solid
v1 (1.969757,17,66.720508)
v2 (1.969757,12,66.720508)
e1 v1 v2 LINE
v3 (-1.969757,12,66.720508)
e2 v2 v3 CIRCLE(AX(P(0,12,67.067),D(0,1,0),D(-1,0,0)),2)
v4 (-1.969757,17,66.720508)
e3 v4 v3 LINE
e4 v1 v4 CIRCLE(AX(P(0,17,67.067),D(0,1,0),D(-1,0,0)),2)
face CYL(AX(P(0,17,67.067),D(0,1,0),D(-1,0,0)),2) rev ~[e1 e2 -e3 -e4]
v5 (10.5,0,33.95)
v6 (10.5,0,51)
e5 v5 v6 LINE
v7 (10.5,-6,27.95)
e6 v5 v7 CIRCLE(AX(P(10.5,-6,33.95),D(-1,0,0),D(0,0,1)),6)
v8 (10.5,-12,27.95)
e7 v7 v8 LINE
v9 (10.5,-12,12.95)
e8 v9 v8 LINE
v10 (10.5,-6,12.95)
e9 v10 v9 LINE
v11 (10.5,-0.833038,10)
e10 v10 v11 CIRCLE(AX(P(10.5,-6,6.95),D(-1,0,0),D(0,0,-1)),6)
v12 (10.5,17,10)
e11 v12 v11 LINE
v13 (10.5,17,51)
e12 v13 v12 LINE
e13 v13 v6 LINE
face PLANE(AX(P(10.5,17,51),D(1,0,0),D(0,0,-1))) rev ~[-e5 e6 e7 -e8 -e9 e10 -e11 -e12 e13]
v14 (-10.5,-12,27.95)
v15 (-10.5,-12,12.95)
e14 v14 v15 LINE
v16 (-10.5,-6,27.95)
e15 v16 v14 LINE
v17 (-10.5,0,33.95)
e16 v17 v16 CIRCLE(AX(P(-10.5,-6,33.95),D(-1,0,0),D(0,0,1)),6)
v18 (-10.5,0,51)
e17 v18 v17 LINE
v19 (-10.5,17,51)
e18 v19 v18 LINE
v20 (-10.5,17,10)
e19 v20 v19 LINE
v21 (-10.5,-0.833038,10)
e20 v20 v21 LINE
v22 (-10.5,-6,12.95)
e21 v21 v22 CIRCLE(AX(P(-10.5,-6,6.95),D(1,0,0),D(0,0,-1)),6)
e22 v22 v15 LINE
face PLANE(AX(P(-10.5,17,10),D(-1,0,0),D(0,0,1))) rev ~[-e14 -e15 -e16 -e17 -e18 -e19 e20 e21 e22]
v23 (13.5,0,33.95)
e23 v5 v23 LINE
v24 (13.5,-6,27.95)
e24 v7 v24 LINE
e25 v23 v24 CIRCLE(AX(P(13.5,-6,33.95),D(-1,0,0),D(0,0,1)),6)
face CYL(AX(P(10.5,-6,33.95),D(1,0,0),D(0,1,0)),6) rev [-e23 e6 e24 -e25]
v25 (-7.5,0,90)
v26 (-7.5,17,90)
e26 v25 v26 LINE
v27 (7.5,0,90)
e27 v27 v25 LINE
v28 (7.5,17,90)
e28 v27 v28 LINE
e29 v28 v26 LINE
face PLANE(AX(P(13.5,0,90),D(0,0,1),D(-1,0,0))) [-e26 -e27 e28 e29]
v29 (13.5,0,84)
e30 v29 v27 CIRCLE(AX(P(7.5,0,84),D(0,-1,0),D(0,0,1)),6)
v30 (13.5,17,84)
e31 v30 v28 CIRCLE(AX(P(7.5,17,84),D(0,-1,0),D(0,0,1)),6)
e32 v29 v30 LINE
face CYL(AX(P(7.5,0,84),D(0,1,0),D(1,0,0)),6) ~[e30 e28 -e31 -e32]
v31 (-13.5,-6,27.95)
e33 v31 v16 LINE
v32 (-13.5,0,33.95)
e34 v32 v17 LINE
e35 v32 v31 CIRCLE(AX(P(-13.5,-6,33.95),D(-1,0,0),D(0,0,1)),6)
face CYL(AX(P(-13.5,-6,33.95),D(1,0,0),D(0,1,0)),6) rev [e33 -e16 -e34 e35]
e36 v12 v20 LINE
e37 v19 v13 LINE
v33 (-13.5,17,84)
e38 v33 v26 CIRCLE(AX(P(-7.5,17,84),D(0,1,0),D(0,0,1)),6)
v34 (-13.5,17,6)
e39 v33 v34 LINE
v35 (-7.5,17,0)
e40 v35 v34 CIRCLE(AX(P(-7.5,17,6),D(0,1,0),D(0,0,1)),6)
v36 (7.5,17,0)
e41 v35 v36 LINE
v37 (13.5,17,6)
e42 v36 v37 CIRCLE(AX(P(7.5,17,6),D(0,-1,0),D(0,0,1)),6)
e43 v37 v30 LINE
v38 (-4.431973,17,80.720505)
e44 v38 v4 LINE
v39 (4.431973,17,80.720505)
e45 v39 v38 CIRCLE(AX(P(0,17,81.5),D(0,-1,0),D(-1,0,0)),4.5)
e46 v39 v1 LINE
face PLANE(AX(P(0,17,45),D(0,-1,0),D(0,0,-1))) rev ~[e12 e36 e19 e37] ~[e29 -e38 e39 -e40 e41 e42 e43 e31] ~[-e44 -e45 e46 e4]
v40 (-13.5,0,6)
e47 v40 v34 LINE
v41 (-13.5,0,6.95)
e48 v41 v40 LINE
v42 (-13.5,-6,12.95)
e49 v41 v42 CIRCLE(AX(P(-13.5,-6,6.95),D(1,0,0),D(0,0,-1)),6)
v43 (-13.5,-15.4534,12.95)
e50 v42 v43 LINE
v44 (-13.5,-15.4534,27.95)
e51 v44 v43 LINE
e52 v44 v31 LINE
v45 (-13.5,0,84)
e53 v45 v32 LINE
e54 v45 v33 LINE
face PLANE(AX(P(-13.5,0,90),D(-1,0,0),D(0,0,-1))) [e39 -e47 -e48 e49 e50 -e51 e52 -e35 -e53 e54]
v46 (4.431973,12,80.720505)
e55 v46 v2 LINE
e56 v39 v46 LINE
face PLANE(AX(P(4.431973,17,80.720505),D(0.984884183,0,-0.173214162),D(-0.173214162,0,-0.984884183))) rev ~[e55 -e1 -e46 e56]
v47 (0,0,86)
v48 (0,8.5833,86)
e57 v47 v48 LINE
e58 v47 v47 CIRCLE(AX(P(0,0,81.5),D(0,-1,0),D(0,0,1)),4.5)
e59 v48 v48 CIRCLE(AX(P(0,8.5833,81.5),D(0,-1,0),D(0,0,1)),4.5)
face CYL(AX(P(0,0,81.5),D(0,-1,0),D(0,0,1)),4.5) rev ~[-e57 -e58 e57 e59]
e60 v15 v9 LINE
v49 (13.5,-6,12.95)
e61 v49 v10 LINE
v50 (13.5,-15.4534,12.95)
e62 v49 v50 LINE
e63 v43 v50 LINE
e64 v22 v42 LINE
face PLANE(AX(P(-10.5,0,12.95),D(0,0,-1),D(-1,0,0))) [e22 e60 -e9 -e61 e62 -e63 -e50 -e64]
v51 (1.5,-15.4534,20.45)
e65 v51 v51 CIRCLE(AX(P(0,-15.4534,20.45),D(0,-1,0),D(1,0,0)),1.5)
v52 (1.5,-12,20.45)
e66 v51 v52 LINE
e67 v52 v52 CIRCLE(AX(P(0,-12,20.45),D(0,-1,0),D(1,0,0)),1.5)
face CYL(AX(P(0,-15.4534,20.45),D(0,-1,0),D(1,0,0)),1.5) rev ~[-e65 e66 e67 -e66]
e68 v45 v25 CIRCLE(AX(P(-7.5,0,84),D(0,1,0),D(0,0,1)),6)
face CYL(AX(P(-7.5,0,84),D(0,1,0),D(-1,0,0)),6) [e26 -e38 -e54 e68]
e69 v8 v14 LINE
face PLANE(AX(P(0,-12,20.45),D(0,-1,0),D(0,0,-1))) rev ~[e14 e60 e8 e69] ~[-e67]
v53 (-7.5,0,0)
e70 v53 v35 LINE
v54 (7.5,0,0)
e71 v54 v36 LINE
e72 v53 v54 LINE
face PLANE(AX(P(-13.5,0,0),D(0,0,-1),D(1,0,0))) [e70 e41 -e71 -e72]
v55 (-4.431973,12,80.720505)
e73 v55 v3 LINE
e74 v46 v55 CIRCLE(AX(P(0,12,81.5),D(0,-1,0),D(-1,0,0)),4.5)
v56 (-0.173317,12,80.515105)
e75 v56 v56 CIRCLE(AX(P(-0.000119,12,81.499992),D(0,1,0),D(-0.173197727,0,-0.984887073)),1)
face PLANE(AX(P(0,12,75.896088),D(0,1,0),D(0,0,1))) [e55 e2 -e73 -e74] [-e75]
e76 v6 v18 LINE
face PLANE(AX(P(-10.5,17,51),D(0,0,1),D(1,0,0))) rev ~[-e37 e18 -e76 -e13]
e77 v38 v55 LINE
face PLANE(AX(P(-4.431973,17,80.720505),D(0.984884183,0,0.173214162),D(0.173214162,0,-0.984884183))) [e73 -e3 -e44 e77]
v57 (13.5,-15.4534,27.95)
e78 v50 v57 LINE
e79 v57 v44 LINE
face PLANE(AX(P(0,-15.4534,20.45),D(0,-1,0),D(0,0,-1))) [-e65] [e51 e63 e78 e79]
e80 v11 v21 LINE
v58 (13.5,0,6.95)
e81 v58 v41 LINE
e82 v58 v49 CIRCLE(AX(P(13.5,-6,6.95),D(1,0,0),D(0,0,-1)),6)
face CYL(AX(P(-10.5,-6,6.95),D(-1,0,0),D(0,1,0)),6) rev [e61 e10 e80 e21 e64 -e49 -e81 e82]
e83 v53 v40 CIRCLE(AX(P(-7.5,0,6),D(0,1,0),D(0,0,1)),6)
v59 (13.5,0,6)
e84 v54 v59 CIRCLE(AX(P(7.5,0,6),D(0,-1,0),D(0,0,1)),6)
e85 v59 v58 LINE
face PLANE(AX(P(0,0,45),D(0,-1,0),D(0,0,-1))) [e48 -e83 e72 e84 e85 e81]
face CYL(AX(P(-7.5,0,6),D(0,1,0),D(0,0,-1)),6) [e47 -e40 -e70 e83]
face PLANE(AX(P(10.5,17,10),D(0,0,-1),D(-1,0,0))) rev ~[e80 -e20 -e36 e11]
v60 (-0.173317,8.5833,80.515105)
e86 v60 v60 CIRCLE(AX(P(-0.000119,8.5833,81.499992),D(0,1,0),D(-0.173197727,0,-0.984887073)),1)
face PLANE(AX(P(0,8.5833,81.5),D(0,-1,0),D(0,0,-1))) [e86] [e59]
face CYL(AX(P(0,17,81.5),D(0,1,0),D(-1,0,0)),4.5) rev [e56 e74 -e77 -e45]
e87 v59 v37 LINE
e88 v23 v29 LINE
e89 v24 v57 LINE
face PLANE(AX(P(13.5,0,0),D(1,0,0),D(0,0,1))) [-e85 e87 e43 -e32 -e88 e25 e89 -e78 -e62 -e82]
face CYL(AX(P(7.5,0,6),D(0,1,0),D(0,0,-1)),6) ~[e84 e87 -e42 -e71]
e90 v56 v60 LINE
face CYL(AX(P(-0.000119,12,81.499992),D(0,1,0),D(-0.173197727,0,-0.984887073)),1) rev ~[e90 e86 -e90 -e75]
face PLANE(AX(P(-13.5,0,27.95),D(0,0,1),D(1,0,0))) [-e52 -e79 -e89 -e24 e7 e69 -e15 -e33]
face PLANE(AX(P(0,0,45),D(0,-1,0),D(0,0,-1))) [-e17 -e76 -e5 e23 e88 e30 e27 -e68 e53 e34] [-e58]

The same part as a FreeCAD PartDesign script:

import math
import FreeCAD as App
import Part
import Sketcher
from FreeCAD import Vector
Q = App.Units.Quantity


def edges_at(feature, points):
    """Names of the edges that pass closest to the given points."""
    edges = feature.Shape.Edges
    near = lambda p: min(range(len(edges)), key=lambda i: edges[i].distToShape(Part.Vertex(*p))[0])
    return sorted({f"Edge{near(p) + 1}" for p in points})


def add_polygon(sketch, points):
    """Adds a closed chain of lines whose ends are joined by coincident constraints."""
    first, n = sketch.GeometryCount, len(points)
    for a, b in zip(points, points[1:] + points[:1]):
        sketch.addGeometry(Part.LineSegment(App.Vector(*a, 0), App.Vector(*b, 0)), False)
    for i in range(n):
        sketch.addConstraint(Sketcher.Constraint("Coincident", first + i, 2, first + (i + 1) % n, 1))

doc = App.newDocument("Part")
body = doc.addObject("PartDesign::Body", "Body")

sketch1 = doc.addObject("Sketcher::SketchObject", "Sketch")
body.addObject(sketch1)
sketch1.AttachmentSupport = (doc.XZ_Plane, [""])
sketch1.MapMode = "FlatFace"
add_polygon(sketch1, [(-13.5, 90), (-13.5, 0), (13.5, 0), (13.5, 90)])
sketch1.addConstraint([
    Sketcher.Constraint("Vertical", 0),
    Sketcher.Constraint("Horizontal", 1),
    Sketcher.Constraint("Vertical", 2),
    Sketcher.Constraint("Horizontal", 3),
    Sketcher.Constraint("Symmetric", 0, 2, 1, 2, -1, 1),
    Sketcher.Constraint("DistanceX", 0, 2, -1, 1, Q("13.5 mm")),
    Sketcher.Constraint("DistanceY", 0, 2, 0, 1, Q("90 mm")),
])
pad1 = doc.addObject("PartDesign::Pad", "Pad")
body.addObject(pad1)
pad1.Profile = sketch1
pad1.Length = 17
pad1.Reversed = True

sketch2 = doc.addObject("Sketcher::SketchObject", "Sketch001")
body.addObject(sketch2)
sketch2.AttachmentSupport = (doc.XZ_Plane, [""])
sketch2.MapMode = "FlatFace"
sketch2.AttachmentOffset = App.Placement(Vector(0, 0, -17), App.Rotation())
add_polygon(sketch2, [(10.5, 51), (10.5, 10), (-10.5, 10), (-10.5, 51)])
sketch2.addConstraint([
    Sketcher.Constraint("Vertical", 0),
    Sketcher.Constraint("Horizontal", 1),
    Sketcher.Constraint("Vertical", 2),
    Sketcher.Constraint("Horizontal", 3),
    Sketcher.Constraint("DistanceX", -1, 1, 0, 2, Q("10.5 mm")),
    Sketcher.Constraint("DistanceX", 1, 2, -1, 1, Q("10.5 mm")),
    Sketcher.Constraint("DistanceY", 0, 2, 0, 1, Q("41 mm")),
    Sketcher.Constraint("DistanceY", -1, 1, 0, 2, Q("10 mm")),
])
pocket1 = doc.addObject("PartDesign::Pocket", "Pocket")
body.addObject(pocket1)
pocket1.Profile = sketch2
pocket1.Length = 53.489
pocket1.Reversed = True

sketch3 = doc.addObject("Sketcher::SketchObject", "Sketch002")
body.addObject(sketch3)
sketch3.AttachmentSupport = (doc.XZ_Plane, [""])
sketch3.MapMode = "FlatFace"
sketch3.AttachmentOffset = App.Placement(Vector(0, 0, -17), App.Rotation())
sketch3.addGeometry([
    Part.ArcOfCircle(Part.Circle(Vector(0, 81.5, 0), Vector(0, 0, 1), 4.500027), math.radians(-9.975158), math.radians(189.975158)),
    Part.LineSegment(Vector(4.432, 80.7205, 0), Vector(1.9698, 66.7205, 0)),
    Part.ArcOfCircle(Part.Circle(Vector(0, 67.067, 0), Vector(0, 0, 1), 2.000044), math.radians(-170.023385), math.radians(-9.976615)),
    Part.LineSegment(Vector(-1.9698, 66.7205, 0), Vector(-4.432, 80.7205, 0)),
], False)
sketch3.addConstraint([
    Sketcher.Constraint("Coincident", 0, 1, 1, 1),
    Sketcher.Constraint("Coincident", 1, 2, 2, 2),
    Sketcher.Constraint("Coincident", 2, 1, 3, 1),
    Sketcher.Constraint("Coincident", 3, 2, 0, 2),
    Sketcher.Constraint("PointOnObject", 0, 3, -2),
    Sketcher.Constraint("PointOnObject", 2, 3, -2),
    Sketcher.Constraint("Radius", 2, Q("2 mm")),
    Sketcher.Constraint("Radius", 0, Q("4.5 mm")),
    Sketcher.Constraint("DistanceX", -1, 1, 0, 1, Q("4.432 mm")),
    Sketcher.Constraint("DistanceX", 3, 2, -1, 1, Q("4.432 mm")),
    Sketcher.Constraint("DistanceY", 1, 2, 0, 1, Q("14 mm")),
    Sketcher.Constraint("DistanceY", 2, 1, 0, 1, Q("14 mm")),
    Sketcher.Constraint("DistanceY", -1, 1, 0, 3, Q("81.5 mm")),
    Sketcher.Constraint("DistanceY", -1, 1, 2, 3, Q("67.067 mm")),
])
pocket2 = doc.addObject("PartDesign::Pocket", "Pocket001")
body.addObject(pocket2)
pocket2.Profile = sketch3
pocket2.Length = 5
pocket2.Reversed = True
doc.recompute()

fillet = doc.addObject("PartDesign::Fillet", "Fillet")
body.addObject(fillet)
fillet.Base = (pocket2, edges_at(pocket2, [
    (-13.5, 8.5, 0),
    (13.5, 8.5, 0),
    (13.5, 8.5, 90),
    (-13.5, 8.5, 90),
]))
fillet.Radius = 6

sketch4 = doc.addObject("Sketcher::SketchObject", "Sketch003")
body.addObject(sketch4)
sketch4.AttachmentSupport = (doc.XZ_Plane, [""])
sketch4.MapMode = "FlatFace"
sketch4.AttachmentOffset = App.Placement(Vector(0, 0, -12), App.Rotation())
sketch4.addGeometry(Part.Circle(Vector(-0.000119, 81.499992, 0), Vector(0, 0, 1), 1), False)
sketch4.addConstraint([
    Sketcher.Constraint("PointOnObject", 0, 3, -2),
    Sketcher.Constraint("Diameter", 0, Q("2 mm")),
    Sketcher.Constraint("DistanceY", -1, 1, 0, 3, Q("81.5 mm")),
])
pocket3 = doc.addObject("PartDesign::Pocket", "Pocket002")
body.addObject(pocket3)
pocket3.Profile = sketch4
pocket3.Type = "ThroughAll"
pocket3.Reversed = True

sketch5 = doc.addObject("Sketcher::SketchObject", "Sketch004")
body.addObject(sketch5)
sketch5.AttachmentSupport = (doc.XZ_Plane, [""])
sketch5.MapMode = "FlatFace"
sketch5.addGeometry(Part.Circle(Vector(0, 81.5, 0), Vector(0, 0, 1), 4.5), False)
sketch5.addConstraint([
    Sketcher.Constraint("PointOnObject", 0, 3, -2),
    Sketcher.Constraint("Diameter", 0, Q("9 mm")),
    Sketcher.Constraint("DistanceY", -1, 1, 0, 3, Q("81.5 mm")),
])
pocket4 = doc.addObject("PartDesign::Pocket", "Pocket003")
body.addObject(pocket4)
pocket4.Profile = sketch5
pocket4.Length = 8.5833

sketch6 = doc.addObject("Sketcher::SketchObject", "Sketch005")
body.addObject(sketch6)
sketch6.AttachmentSupport = (doc.XZ_Plane, [""])
sketch6.MapMode = "FlatFace"
add_polygon(sketch6, [(13.5, 12.95), (13.5, 27.95), (10.5, 27.95), (10.5, 12.95)])
add_polygon(sketch6, [(-10.5, 12.95), (-10.5, 27.95), (-13.5, 27.95), (-13.5, 12.95)])
sketch6.addConstraint([
    Sketcher.Constraint("Vertical", 0),
    Sketcher.Constraint("Horizontal", 1),
    Sketcher.Constraint("Vertical", 2),
    Sketcher.Constraint("Horizontal", 3),
    Sketcher.Constraint("Vertical", 4),
    Sketcher.Constraint("Horizontal", 5),
    Sketcher.Constraint("Vertical", 6),
    Sketcher.Constraint("Horizontal", 7),
    Sketcher.Constraint("Symmetric", 1, 2, 4, 2, -2),
    Sketcher.Constraint("Symmetric", 3, 2, 6, 2, -2),
    Sketcher.Constraint("DistanceX", 1, 2, 1, 1, Q("3 mm")),
    Sketcher.Constraint("DistanceY", 0, 1, 0, 2, Q("15 mm")),
    Sketcher.Constraint("DistanceX", 4, 2, 1, 2, Q("21 mm")),
    Sketcher.Constraint("DistanceY", -1, 1, 0, 2, Q("27.95 mm")),
])
pad2 = doc.addObject("PartDesign::Pad", "Pad001")
body.addObject(pad2)
pad2.Profile = sketch6
pad2.Length = 12

sketch7 = doc.addObject("Sketcher::SketchObject", "Sketch006")
body.addObject(sketch7)
sketch7.AttachmentSupport = (doc.XZ_Plane, [""])
sketch7.MapMode = "FlatFace"
sketch7.AttachmentOffset = App.Placement(Vector(0, 0, 12), App.Rotation())
add_polygon(sketch7, [(13.5, 27.95), (-13.5, 27.95), (-13.5, 12.95), (13.5, 12.95)])
sketch7.addConstraint([
    Sketcher.Constraint("Horizontal", 0),
    Sketcher.Constraint("Vertical", 1),
    Sketcher.Constraint("Horizontal", 2),
    Sketcher.Constraint("Vertical", 3),
    Sketcher.Constraint("DistanceX", 0, 2, 0, 1, Q("27 mm")),
    Sketcher.Constraint("DistanceY", 1, 2, 1, 1, Q("15 mm")),
    Sketcher.Constraint("DistanceX", 0, 2, -1, 1, Q("13.5 mm")),
    Sketcher.Constraint("DistanceY", -1, 1, 0, 2, Q("27.95 mm")),
])
pad3 = doc.addObject("PartDesign::Pad", "Pad002")
body.addObject(pad3)
pad3.Profile = sketch7
pad3.Length = 3.4534

sketch8 = doc.addObject("Sketcher::SketchObject", "Sketch007")
body.addObject(sketch8)
sketch8.AttachmentSupport = (doc.XZ_Plane, [""])
sketch8.MapMode = "FlatFace"
sketch8.AttachmentOffset = App.Placement(Vector(0, 0, 15.4534), App.Rotation())
sketch8.addGeometry(Part.Circle(Vector(0, 20.45, 0), Vector(0, 0, 1), 1.5), False)
sketch8.addConstraint([
    Sketcher.Constraint("PointOnObject", 0, 3, -2),
    Sketcher.Constraint("Diameter", 0, Q("3 mm")),
    Sketcher.Constraint("DistanceY", -1, 1, 0, 3, Q("20.45 mm")),
])
pocket5 = doc.addObject("PartDesign::Pocket", "Pocket004")
body.addObject(pocket5)
pocket5.Profile = sketch8
pocket5.Length = 4.5945
doc.recompute()

fillet2 = doc.addObject("PartDesign::Fillet", "Fillet001")
body.addObject(fillet2)
fillet2.Base = (pocket5, edges_at(pocket5, [(-12, 0, 27.95), (12, 0, 27.95), (-12, 0, 12.95)]))
fillet2.Radius = 6

doc.recompute()
